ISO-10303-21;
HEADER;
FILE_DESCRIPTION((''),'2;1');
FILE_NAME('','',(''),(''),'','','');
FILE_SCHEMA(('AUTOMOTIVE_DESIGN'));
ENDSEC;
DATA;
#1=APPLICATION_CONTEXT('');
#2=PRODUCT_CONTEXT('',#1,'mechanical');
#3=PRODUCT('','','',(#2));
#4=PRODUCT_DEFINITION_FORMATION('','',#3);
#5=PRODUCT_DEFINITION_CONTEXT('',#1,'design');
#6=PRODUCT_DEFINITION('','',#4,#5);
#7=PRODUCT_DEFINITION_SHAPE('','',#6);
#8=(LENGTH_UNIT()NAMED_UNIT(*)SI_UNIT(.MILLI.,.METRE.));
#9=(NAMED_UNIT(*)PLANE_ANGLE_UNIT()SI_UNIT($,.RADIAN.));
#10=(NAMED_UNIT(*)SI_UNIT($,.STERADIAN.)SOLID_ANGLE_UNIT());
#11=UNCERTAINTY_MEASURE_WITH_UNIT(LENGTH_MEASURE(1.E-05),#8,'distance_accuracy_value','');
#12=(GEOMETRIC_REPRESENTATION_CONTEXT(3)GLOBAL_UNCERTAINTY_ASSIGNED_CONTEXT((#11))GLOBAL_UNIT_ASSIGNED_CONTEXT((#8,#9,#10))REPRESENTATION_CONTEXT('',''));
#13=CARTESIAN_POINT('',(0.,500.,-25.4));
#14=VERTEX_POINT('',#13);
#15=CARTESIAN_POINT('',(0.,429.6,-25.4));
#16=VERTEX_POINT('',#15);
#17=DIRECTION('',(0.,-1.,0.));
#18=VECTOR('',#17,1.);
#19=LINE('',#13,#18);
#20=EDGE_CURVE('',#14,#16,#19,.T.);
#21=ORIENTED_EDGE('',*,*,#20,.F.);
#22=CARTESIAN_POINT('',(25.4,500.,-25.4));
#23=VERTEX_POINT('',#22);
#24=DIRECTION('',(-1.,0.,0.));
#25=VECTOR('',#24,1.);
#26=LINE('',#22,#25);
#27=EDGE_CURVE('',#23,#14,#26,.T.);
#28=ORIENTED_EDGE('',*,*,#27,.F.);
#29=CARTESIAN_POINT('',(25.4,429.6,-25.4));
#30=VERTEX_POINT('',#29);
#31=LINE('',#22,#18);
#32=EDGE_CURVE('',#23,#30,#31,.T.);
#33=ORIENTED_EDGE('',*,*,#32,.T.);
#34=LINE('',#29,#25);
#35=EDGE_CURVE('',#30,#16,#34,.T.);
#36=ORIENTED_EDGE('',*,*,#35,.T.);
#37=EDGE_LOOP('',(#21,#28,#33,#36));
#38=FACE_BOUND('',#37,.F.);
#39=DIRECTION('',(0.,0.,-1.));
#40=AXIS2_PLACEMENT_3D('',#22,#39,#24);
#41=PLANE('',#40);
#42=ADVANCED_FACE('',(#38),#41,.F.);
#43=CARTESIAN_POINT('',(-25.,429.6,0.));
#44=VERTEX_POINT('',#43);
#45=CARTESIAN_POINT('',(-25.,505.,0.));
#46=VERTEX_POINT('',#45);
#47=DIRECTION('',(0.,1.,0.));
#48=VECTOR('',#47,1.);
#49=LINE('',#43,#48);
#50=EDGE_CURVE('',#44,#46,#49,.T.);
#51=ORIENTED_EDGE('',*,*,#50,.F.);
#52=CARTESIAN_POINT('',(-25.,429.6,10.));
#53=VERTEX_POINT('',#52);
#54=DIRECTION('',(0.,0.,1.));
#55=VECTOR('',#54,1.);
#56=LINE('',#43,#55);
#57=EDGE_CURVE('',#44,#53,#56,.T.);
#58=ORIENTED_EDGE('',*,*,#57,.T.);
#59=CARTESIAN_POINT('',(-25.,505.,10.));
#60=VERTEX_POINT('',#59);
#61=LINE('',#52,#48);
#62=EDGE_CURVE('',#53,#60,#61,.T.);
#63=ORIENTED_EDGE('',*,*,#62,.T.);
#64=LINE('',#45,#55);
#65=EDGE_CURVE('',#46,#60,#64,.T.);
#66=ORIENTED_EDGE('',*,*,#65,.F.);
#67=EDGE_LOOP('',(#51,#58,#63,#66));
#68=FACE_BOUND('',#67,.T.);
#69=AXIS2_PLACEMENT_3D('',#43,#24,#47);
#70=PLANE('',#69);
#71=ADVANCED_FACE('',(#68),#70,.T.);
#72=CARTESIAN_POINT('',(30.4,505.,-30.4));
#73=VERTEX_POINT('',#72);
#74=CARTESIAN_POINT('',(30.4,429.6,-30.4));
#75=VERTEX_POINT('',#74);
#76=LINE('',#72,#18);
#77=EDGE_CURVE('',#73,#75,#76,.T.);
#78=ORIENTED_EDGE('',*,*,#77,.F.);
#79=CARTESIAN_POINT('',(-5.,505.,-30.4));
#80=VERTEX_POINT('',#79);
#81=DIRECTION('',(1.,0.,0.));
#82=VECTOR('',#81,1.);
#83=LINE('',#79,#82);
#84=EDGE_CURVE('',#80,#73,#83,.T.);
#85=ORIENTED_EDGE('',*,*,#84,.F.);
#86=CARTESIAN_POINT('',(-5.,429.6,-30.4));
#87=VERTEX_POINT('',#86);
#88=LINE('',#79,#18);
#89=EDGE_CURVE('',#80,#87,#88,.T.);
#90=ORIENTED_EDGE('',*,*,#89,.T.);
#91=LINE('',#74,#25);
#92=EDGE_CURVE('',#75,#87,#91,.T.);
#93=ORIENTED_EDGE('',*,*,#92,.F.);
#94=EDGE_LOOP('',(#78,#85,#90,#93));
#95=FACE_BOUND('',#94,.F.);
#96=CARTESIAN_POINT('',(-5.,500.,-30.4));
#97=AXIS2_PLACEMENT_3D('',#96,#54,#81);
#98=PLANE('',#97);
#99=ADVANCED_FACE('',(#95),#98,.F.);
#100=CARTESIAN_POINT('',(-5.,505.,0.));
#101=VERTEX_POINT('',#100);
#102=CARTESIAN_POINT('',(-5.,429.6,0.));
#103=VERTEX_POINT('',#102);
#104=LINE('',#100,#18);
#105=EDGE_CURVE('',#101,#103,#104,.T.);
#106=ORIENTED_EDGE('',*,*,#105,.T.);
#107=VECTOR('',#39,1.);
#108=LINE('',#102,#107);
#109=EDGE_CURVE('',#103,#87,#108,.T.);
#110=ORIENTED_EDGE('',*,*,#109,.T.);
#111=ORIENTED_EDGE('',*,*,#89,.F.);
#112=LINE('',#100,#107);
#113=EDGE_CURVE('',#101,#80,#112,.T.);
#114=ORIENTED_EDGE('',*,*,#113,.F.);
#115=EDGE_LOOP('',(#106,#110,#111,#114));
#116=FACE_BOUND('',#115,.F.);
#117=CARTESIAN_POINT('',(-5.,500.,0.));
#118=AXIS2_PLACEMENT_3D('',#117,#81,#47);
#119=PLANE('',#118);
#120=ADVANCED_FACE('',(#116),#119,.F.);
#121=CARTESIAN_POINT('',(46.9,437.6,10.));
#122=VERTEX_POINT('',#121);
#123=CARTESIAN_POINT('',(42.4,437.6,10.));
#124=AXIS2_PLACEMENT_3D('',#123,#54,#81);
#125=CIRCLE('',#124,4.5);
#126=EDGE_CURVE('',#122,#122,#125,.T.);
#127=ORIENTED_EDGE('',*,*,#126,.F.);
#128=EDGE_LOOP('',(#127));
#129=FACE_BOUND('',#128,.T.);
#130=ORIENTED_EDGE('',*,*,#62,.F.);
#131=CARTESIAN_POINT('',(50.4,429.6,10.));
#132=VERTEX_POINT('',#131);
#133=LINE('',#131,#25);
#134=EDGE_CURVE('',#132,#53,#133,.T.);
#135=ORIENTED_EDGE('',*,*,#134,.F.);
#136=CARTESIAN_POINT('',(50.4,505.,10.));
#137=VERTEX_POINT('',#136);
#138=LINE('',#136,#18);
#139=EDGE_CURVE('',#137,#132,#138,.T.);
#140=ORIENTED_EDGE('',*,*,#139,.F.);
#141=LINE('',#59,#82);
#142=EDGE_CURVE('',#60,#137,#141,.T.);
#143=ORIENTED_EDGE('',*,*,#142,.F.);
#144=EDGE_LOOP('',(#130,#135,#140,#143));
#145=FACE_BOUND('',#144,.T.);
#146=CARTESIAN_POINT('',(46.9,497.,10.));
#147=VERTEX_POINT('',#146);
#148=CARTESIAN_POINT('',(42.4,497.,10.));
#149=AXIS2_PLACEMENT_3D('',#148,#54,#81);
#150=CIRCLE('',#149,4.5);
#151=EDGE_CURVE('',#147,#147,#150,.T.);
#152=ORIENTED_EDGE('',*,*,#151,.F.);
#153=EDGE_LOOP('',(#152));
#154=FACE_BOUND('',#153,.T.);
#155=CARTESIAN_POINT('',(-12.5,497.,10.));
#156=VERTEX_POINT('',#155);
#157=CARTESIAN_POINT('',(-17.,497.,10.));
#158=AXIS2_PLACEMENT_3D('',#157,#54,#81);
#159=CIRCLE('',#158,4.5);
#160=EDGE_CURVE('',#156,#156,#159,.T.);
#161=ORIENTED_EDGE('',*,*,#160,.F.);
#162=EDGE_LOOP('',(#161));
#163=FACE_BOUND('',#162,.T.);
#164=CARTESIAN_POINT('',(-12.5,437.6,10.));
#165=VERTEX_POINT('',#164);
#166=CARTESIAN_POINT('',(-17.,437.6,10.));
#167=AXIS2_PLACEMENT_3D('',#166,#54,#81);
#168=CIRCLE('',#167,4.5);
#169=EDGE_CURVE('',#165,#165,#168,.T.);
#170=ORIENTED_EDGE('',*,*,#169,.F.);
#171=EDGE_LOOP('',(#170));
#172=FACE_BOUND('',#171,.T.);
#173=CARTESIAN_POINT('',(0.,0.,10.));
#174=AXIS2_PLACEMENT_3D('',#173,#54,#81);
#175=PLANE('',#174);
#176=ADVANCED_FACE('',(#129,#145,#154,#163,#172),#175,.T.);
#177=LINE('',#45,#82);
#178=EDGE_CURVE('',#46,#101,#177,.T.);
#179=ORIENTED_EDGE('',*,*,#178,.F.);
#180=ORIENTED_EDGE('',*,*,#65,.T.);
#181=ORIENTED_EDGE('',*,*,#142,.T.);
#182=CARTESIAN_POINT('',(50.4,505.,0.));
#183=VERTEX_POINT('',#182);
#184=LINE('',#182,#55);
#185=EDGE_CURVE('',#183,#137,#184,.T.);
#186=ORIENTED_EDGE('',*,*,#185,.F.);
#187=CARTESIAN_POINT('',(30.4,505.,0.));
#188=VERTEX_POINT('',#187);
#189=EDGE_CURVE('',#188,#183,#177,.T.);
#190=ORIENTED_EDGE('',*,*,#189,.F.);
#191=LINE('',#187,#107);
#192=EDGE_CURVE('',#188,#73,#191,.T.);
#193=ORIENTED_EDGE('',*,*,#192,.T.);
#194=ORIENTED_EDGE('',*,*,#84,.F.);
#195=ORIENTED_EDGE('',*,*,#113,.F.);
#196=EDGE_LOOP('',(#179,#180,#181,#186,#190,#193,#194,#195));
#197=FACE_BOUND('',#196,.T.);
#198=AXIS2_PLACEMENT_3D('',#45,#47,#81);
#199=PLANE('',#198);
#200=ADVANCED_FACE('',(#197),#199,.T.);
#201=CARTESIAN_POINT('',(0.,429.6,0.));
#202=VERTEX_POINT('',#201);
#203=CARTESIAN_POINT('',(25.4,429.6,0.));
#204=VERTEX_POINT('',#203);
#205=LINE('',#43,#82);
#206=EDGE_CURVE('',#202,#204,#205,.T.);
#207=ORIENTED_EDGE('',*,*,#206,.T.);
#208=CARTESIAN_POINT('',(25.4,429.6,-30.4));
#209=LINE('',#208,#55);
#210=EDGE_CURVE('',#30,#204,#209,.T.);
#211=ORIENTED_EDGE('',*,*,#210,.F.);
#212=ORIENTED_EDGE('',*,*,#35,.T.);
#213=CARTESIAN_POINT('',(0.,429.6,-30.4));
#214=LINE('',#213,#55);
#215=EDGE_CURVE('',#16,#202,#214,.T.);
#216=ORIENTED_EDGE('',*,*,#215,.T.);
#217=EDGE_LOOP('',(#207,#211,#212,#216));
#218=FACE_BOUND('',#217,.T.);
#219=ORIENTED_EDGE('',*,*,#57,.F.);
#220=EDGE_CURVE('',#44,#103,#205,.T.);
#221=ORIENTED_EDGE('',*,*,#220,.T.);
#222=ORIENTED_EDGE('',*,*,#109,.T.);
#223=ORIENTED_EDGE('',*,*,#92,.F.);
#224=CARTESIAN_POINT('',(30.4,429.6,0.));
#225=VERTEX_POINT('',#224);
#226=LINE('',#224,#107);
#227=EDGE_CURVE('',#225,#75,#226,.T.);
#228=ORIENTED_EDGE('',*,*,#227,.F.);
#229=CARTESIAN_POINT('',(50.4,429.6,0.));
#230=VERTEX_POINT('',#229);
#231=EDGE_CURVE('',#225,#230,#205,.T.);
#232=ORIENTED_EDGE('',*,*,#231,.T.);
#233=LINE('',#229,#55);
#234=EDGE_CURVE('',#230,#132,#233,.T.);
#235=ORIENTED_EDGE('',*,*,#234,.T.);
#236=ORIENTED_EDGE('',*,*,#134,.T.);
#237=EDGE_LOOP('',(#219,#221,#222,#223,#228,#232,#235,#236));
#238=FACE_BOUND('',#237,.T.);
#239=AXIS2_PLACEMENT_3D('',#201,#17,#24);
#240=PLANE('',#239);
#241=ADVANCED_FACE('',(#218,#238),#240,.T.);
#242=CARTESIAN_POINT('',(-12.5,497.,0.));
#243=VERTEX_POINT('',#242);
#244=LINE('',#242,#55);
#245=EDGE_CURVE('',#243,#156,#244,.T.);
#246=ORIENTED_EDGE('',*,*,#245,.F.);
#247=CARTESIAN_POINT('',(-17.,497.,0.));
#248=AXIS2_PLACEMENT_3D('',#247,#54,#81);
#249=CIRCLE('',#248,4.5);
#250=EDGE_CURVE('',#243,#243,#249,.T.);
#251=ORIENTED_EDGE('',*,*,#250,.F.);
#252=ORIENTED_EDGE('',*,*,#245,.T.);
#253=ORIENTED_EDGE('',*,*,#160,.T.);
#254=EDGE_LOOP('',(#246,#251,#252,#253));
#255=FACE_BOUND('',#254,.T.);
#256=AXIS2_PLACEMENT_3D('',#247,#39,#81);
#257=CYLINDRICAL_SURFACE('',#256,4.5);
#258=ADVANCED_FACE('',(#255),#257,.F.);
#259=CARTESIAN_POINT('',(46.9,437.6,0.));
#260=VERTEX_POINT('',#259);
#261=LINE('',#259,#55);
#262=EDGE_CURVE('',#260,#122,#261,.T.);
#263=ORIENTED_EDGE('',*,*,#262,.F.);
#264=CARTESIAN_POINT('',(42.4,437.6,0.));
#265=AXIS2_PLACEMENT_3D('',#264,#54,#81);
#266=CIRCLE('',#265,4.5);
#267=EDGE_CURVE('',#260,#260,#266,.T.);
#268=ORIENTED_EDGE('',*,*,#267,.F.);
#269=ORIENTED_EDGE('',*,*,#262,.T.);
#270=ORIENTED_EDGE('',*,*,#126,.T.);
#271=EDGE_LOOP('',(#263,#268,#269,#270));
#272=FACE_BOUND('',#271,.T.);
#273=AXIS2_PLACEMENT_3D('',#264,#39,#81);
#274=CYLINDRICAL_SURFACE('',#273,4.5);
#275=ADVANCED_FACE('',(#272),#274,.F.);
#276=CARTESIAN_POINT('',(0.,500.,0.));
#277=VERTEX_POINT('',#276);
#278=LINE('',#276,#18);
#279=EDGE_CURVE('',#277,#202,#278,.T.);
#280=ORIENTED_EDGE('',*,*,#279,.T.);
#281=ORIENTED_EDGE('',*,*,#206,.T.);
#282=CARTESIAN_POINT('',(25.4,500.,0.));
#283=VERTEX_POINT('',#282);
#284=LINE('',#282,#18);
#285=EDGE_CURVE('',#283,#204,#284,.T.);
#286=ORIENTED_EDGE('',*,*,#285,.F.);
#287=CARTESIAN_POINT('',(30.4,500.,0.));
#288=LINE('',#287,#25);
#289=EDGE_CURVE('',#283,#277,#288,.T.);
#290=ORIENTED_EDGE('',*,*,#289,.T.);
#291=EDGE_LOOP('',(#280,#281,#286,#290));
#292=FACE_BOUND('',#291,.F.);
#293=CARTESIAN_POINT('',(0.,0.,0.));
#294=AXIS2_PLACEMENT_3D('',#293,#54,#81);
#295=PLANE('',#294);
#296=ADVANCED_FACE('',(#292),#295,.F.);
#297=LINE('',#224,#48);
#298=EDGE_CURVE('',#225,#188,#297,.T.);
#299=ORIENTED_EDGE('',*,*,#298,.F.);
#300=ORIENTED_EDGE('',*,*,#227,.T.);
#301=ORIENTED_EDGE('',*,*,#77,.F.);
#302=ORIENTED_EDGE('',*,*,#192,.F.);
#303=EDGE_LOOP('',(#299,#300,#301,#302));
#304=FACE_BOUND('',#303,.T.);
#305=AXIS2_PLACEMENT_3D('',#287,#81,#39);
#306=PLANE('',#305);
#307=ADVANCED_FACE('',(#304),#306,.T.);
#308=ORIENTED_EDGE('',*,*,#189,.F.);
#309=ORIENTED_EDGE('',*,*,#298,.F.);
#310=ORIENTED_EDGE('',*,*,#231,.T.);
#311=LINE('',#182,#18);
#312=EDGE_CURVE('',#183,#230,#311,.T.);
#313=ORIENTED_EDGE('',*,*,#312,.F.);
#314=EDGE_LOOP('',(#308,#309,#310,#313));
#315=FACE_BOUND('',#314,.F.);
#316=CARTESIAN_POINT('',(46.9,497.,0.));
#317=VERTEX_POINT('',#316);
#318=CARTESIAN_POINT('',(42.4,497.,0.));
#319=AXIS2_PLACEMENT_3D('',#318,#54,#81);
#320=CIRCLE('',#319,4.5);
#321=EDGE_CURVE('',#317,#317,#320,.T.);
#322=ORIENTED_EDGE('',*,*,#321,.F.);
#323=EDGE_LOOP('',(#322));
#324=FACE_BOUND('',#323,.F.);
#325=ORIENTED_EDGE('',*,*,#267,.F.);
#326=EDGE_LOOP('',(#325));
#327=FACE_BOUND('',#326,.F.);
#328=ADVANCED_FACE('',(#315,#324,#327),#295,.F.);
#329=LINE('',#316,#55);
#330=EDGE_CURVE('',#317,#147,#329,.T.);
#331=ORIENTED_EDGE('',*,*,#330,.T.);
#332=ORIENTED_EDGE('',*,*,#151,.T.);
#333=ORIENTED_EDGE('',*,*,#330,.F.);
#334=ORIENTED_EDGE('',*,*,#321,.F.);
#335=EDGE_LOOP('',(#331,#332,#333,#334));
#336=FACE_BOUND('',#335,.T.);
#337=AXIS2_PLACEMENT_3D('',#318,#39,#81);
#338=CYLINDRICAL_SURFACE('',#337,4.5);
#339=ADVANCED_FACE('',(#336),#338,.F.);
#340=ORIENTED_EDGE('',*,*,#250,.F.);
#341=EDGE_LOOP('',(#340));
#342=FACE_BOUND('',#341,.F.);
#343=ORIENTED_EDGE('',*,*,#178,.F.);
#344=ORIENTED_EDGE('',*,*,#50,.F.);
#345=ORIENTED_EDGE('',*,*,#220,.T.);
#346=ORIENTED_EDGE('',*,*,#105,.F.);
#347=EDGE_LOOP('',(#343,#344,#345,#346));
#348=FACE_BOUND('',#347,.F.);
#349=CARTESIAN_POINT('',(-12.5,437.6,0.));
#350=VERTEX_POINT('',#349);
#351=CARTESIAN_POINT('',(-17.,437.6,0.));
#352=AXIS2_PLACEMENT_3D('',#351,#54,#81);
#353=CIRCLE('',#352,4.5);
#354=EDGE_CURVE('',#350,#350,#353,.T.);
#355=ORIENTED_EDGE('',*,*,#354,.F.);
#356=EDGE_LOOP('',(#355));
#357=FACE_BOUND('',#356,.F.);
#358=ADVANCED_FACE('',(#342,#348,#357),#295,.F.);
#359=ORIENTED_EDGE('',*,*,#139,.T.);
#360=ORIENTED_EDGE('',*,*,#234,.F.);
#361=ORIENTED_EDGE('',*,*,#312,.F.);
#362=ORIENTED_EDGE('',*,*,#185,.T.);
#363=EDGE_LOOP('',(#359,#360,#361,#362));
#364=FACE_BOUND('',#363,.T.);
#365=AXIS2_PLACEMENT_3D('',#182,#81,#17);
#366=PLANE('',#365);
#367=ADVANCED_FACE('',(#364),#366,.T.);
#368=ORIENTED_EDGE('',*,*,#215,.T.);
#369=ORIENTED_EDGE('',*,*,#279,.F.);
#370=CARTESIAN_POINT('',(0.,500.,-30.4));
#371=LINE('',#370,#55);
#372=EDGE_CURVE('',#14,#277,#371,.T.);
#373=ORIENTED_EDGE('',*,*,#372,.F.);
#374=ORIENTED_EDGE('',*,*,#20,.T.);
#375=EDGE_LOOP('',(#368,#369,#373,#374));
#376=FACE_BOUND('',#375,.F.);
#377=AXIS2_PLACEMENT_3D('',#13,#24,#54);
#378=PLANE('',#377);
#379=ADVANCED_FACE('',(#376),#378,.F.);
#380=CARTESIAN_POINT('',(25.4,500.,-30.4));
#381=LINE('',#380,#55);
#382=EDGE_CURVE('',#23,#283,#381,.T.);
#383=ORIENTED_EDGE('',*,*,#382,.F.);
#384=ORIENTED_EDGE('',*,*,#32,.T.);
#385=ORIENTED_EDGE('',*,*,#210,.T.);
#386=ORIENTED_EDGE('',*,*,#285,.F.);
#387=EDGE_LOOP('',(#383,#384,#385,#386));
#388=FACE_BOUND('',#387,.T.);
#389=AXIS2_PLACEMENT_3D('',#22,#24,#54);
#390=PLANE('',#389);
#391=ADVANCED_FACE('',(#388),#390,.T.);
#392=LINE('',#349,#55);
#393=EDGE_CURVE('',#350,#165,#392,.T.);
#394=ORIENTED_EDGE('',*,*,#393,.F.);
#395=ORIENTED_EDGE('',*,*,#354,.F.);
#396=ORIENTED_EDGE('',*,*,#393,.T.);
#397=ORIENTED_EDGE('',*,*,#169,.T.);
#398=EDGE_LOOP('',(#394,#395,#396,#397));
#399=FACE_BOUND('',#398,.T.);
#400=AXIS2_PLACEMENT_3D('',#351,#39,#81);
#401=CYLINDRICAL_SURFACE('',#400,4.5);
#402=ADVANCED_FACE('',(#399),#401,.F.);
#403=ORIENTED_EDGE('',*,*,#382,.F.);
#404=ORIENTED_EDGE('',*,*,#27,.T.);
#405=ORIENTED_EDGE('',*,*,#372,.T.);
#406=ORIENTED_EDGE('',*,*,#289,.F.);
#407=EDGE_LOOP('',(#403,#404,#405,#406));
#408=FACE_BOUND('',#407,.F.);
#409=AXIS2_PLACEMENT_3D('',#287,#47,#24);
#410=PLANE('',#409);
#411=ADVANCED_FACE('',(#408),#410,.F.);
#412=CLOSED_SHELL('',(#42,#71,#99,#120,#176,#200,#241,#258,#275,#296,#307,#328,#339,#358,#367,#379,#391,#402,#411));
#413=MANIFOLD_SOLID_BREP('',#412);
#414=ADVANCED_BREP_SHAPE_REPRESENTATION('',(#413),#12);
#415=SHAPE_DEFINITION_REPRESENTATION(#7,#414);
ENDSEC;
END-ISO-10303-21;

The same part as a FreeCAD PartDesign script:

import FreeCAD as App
import Part
import Sketcher

V = App.Vector


def add_polygon(sketch, points):
    """Adds a closed chain of lines whose ends are joined by coincident constraints."""
    first, n = sketch.GeometryCount, len(points)
    for a, b in zip(points, points[1:] + points[:1]):
        sketch.addGeometry(Part.LineSegment(App.Vector(*a, 0), App.Vector(*b, 0)), False)
    for i in range(n):
        sketch.addConstraint(Sketcher.Constraint("Coincident", first + i, 2, first + (i + 1) % n, 1))

doc = App.newDocument("Part")
body = doc.addObject("PartDesign::Body", "Body")

sketch1 = body.newObject("Sketcher::SketchObject", "Sketch")
sketch1.AttachmentSupport = (doc.getObject("XY_Plane"), [""])
sketch1.MapMode = "FlatFace"
add_polygon(sketch1, [(-25, 429.6), (50.4, 429.6), (50.4, 505), (-25, 505)])
sketch1.addGeometry(Part.Circle(V(-17, 437.6, 0), V(0, 0, 1), 4.5), False)
sketch1.addGeometry(Part.Circle(V(-17, 497, 0), V(0, 0, 1), 4.5), False)
sketch1.addGeometry(Part.Circle(V(42.4, 437.6, 0), V(0, 0, 1), 4.5), False)
sketch1.addGeometry(Part.Circle(V(42.4, 497, 0), V(0, 0, 1), 4.5), False)
sketch1.addConstraint([
    Sketcher.Constraint("Horizontal", 0),
    Sketcher.Constraint("Vertical", 1),
    Sketcher.Constraint("Horizontal", 2),
    Sketcher.Constraint("Vertical", 3),
    Sketcher.Constraint("Equal", 4, 5),
    Sketcher.Constraint("Equal", 5, 6),
    Sketcher.Constraint("Equal", 6, 7),
    Sketcher.Constraint("Horizontal", 4, 3, 6, 3),
    Sketcher.Constraint("Horizontal", 5, 3, 7, 3),
    Sketcher.Constraint("Vertical", 4, 3, 5, 3),
    Sketcher.Constraint("Vertical", 6, 3, 7, 3),
    Sketcher.Constraint("Equal", 2, 1),
    Sketcher.Constraint("Diameter", 4, 9.0),
    Sketcher.Constraint("DistanceX", 2, 2, -1, 1, 25.0),
    Sketcher.Constraint("DistanceX", 6, 3, 0, 2, 8.0),
    Sketcher.Constraint("DistanceY", 0, 2, 6, 3, 8.0),
    Sketcher.Constraint("DistanceY", 7, 3, 1, 2, 8.0),
    Sketcher.Constraint("DistanceX", 2, 2, 5, 3, 8.0),
    Sketcher.Constraint("DistanceX", 0, 1, 0, 2, 75.4),
    Sketcher.Constraint("DistanceY", -1, 1, 5, 3, 497.0),
])
pad1 = body.newObject("PartDesign::Pad", "Pad")
pad1.Profile = sketch1
pad1.Length = 10

sketch2 = body.newObject("Sketcher::SketchObject", "Sketch001")
sketch2.AttachmentSupport = (doc.getObject("XY_Plane"), [""])
sketch2.MapMode = "FlatFace"
add_polygon(sketch2, [(-5, 500), (-5, 505), (30, 505), (30, 500)])
sketch2.addConstraint([
    Sketcher.Constraint("Vertical", 0),
    Sketcher.Constraint("Horizontal", 1),
    Sketcher.Constraint("Vertical", 2),
    Sketcher.Constraint("Horizontal", 3),
    Sketcher.Constraint("DistanceY", 0, 1, 0, 2, 5.0),
    Sketcher.Constraint("DistanceX", 1, 1, 1, 2, 35.4),
    Sketcher.Constraint("DistanceX", 0, 2, -1, 1, 5.0),
    Sketcher.Constraint("DistanceY", -1, 1, 0, 2, 505.0),
])
pad2 = body.newObject("PartDesign::Pad", "Pad001")
pad2.Profile = sketch2
pad2.Length = 30.4
pad2.Reversed = True

sketch3 = body.newObject("Sketcher::SketchObject", "Sketch002")
sketch3.AttachmentSupport = (doc.getObject("XZ_Plane"), [""])
sketch3.MapMode = "FlatFace"
sketch3.AttachmentOffset = App.Placement(V(0, 0, -500), App.Rotation())
add_polygon(sketch3, [(-5, 0), (-5, -30), (30, -30), (30, 0), (25, 0), (25, -25), (0, -25), (0, 0)])
sketch3.addConstraint([
    Sketcher.Constraint("Vertical", 0),
    Sketcher.Constraint("Horizontal", 1),
    Sketcher.Constraint("Vertical", 2),
    Sketcher.Constraint("Horizontal", 3),
    Sketcher.Constraint("Vertical", 4),
    Sketcher.Constraint("Horizontal", 5),
    Sketcher.Constraint("Vertical", 6),
    Sketcher.Constraint("Horizontal", 7),
    Sketcher.Constraint("Coincident", 6, 2, -1, 1),
    Sketcher.Constraint("PointOnObject", 2, 2, -1),
    Sketcher.Constraint("Equal", 3, 7),
    Sketcher.Constraint("Equal", 5, 4),
    Sketcher.Constraint("DistanceX", 3, 2, 3, 1, 5.0),
    Sketcher.Constraint("DistanceX", 5, 2, 5, 1, 25.4),
    Sketcher.Constraint("DistanceY", 1, 2, 4, 2, 5.0),
])
pad3 = body.newObject("PartDesign::Pad", "Pad002")
pad3.Profile = sketch3
pad3.Length = 70.4

doc.recompute()
